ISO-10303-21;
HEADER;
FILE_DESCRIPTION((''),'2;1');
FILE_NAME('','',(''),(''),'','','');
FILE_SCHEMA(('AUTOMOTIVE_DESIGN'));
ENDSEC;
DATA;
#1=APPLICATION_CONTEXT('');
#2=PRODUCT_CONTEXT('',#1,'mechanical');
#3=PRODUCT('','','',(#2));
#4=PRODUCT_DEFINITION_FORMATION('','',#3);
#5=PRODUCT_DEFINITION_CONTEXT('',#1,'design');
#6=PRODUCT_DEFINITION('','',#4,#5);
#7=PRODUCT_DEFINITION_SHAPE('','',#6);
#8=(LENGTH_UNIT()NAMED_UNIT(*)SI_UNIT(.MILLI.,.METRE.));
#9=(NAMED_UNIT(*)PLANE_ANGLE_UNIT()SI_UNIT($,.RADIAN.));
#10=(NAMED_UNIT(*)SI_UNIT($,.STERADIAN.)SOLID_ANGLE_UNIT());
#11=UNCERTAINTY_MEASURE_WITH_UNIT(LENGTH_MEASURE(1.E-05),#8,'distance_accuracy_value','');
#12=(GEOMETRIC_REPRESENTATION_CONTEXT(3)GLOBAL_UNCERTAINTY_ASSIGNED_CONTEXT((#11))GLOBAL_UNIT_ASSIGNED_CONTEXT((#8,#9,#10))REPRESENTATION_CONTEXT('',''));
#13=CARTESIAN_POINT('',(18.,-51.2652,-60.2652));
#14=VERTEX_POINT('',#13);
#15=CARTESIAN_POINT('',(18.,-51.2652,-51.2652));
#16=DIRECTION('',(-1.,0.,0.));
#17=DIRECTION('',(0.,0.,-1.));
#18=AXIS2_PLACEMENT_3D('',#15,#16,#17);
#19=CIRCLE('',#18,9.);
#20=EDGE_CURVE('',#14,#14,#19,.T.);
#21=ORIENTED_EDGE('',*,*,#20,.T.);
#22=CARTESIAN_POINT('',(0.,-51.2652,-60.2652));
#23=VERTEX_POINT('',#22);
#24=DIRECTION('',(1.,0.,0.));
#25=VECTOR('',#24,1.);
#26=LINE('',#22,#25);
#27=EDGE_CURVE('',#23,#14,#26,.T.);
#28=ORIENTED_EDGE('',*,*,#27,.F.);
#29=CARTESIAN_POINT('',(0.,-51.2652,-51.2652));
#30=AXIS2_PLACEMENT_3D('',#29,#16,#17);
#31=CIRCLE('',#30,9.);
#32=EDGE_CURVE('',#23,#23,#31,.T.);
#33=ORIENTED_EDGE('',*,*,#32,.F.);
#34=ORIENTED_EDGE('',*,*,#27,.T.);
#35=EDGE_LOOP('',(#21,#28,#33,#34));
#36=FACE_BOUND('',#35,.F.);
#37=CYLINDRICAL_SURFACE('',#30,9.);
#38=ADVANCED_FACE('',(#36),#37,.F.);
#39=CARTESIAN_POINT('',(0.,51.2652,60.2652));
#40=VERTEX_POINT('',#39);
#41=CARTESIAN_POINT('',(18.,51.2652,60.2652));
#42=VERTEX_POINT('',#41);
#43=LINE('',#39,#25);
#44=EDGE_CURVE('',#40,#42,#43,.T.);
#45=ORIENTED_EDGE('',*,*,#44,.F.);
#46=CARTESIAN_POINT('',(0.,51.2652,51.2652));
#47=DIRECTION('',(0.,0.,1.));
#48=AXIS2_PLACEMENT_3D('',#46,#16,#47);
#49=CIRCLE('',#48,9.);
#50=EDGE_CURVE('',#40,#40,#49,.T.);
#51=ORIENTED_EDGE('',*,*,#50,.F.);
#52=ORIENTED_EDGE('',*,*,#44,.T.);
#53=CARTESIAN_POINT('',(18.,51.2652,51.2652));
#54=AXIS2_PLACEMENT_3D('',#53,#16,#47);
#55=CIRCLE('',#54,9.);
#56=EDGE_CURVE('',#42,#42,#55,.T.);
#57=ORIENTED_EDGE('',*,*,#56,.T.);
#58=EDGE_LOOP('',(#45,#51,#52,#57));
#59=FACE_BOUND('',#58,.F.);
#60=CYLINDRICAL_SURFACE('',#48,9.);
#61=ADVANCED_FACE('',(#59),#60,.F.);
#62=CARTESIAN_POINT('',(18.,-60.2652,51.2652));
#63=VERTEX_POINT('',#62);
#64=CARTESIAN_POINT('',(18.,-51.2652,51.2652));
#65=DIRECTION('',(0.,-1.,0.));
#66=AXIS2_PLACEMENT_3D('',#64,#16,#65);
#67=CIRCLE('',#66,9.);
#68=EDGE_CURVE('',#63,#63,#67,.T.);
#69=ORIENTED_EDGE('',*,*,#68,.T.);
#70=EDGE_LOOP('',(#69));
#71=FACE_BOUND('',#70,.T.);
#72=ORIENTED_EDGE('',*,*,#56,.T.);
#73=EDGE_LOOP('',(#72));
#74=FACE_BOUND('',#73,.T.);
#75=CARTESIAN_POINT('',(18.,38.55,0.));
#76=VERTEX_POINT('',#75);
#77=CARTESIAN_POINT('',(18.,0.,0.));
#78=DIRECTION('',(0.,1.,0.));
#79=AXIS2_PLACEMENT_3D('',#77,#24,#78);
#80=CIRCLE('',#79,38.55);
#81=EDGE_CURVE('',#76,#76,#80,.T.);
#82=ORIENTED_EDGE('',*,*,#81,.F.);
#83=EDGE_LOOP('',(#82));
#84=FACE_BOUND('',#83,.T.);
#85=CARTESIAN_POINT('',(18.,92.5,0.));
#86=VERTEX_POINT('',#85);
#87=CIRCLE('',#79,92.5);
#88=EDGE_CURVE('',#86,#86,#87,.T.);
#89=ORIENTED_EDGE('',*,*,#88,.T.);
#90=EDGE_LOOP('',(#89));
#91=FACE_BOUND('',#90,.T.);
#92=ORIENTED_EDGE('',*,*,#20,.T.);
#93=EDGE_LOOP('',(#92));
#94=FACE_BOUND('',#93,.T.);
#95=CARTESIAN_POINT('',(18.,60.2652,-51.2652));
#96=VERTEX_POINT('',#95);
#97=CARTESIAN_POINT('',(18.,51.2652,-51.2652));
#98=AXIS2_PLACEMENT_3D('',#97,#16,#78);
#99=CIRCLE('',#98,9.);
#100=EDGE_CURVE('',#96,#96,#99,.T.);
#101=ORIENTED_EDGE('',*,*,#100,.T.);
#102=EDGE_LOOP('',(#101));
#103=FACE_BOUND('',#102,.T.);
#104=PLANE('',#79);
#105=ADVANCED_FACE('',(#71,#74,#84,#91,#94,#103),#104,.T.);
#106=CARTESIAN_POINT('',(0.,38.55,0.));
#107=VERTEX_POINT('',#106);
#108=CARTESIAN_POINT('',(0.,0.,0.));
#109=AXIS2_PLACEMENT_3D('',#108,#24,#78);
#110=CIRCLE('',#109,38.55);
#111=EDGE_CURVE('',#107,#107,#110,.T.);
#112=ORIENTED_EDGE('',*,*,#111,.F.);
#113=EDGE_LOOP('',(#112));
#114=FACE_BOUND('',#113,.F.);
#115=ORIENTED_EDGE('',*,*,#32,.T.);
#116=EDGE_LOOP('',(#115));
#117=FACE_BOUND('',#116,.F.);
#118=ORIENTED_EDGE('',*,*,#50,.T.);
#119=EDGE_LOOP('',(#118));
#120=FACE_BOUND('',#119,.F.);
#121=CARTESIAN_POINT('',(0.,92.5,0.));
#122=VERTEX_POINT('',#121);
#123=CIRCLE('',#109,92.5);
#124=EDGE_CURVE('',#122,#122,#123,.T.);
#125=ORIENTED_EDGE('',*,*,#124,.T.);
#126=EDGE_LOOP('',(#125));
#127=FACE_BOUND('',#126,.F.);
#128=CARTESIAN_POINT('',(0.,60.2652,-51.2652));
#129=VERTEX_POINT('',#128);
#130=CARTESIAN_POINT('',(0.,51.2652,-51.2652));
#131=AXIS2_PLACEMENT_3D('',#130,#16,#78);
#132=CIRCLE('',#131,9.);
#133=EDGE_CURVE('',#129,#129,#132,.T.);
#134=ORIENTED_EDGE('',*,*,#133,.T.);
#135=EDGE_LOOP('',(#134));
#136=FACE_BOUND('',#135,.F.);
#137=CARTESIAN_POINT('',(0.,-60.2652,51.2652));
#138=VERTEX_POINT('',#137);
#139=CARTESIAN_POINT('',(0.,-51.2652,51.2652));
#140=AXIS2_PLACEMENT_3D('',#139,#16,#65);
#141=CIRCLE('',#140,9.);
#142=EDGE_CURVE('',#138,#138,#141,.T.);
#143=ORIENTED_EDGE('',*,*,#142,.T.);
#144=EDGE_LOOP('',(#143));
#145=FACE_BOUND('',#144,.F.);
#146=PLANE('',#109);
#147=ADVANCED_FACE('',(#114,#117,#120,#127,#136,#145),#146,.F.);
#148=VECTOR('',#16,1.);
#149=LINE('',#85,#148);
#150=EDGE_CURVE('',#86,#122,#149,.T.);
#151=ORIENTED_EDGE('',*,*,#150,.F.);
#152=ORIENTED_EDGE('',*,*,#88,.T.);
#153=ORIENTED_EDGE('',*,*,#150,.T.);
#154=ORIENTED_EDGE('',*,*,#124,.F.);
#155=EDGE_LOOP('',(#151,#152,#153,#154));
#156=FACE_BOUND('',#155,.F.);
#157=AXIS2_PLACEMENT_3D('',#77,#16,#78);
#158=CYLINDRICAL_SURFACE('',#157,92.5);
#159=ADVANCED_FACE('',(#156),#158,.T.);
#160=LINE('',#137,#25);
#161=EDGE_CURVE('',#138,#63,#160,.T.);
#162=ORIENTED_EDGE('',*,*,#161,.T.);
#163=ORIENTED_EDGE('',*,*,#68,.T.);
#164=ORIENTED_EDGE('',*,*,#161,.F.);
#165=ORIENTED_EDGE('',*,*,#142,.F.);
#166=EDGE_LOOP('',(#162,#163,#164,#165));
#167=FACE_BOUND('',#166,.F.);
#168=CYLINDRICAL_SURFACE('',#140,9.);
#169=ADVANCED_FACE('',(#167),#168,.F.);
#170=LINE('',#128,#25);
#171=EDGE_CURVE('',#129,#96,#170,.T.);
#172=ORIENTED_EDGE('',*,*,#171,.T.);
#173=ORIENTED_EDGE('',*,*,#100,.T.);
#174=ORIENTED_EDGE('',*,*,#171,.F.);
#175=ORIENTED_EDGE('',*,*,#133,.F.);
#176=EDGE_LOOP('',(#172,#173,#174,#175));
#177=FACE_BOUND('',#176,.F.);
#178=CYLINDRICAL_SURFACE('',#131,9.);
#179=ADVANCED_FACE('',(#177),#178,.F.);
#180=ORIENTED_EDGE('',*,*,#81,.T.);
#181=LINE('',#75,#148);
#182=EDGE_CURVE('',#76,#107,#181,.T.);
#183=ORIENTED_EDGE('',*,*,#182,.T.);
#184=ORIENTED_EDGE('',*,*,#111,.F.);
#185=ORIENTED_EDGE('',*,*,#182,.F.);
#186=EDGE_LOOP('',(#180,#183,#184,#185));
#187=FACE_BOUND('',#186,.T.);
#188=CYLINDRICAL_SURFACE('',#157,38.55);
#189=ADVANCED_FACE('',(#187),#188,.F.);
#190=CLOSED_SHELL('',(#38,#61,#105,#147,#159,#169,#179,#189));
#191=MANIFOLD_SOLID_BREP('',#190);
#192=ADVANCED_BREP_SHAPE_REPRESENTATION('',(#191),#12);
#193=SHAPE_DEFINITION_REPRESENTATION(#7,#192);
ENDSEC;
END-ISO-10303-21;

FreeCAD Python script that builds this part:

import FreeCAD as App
import Part
import Sketcher
Q = App.Units.Quantity


def add_polygon(sketch, points):
    """Adds a closed chain of lines whose ends are joined by coincident constraints."""
    first, n = sketch.GeometryCount, len(points)
    for a, b in zip(points, points[1:] + points[:1]):
        sketch.addGeometry(Part.LineSegment(App.Vector(*a, 0), App.Vector(*b, 0)), False)
    for i in range(n):
        sketch.addConstraint(Sketcher.Constraint("Coincident", first + i, 2, first + (i + 1) % n, 1))

doc = App.newDocument("Part")
body = doc.addObject("PartDesign::Body", "Body")

sketch1 = body.newObject("Sketcher::SketchObject", "Sketch")
sketch1.AttachmentSupport = (doc.getObject("XY_Plane"), [""])
sketch1.MapMode = "FlatFace"
add_polygon(sketch1, [(18, 38.55), (18, 92.5), (0, 92.5), (0, 38.55)])
sketch1.addConstraint(Sketcher.Constraint("Vertical", 0))
sketch1.addConstraint(Sketcher.Constraint("Horizontal", 1))
sketch1.addConstraint(Sketcher.Constraint("Vertical", 2))
sketch1.addConstraint(Sketcher.Constraint("Horizontal", 3))
sketch1.addConstraint(Sketcher.Constraint("PointOnObject", 1, 2, -2))
sketch1.addConstraint(Sketcher.Constraint("DistanceX", 1, 2, 1, 1, Q("18 mm")))
sketch1.addConstraint(Sketcher.Constraint("DistanceY", 0, 1, 0, 2, Q("53.95 mm")))
sketch1.addConstraint(Sketcher.Constraint("DistanceY", -1, 1, 0, 2, Q("92.5 mm")))
revolution = body.newObject("PartDesign::Revolution", "Revolution")
revolution.Profile = sketch1
revolution.ReferenceAxis = (sketch1, ["H_Axis"])
revolution.Angle = 360

sketch2 = body.newObject("Sketcher::SketchObject", "Sketch001")
sketch2.AttachmentSupport = (doc.getObject("YZ_Plane"), [""])
sketch2.MapMode = "FlatFace"
sketch2.addGeometry(Part.Circle(App.Vector(51.2652, 51.2652, 0), App.Vector(0, 0, 1), 9), False)
sketch2.addConstraint(Sketcher.Constraint("Diameter", 0, Q("18 mm")))
sketch2.addConstraint(Sketcher.Constraint("DistanceX", -1, 1, 0, 3, Q("51.2652 mm")))
sketch2.addConstraint(Sketcher.Constraint("DistanceY", -1, 1, 0, 3, Q("51.2652 mm")))
pocket1 = body.newObject("PartDesign::Pocket", "Pocket")
pocket1.Profile = sketch2
pocket1.Type = "ThroughAll"
pocket1.Reversed = True
doc.recompute()

polarpattern = body.newObject("PartDesign::PolarPattern", "PolarPattern")
polarpattern.Originals = [pocket1]
polarpattern.Axis = (doc.getObject("X_Axis"), [""])
polarpattern.Angle = 360
polarpattern.Occurrences = 4
body.Tip = polarpattern

doc.recompute()
